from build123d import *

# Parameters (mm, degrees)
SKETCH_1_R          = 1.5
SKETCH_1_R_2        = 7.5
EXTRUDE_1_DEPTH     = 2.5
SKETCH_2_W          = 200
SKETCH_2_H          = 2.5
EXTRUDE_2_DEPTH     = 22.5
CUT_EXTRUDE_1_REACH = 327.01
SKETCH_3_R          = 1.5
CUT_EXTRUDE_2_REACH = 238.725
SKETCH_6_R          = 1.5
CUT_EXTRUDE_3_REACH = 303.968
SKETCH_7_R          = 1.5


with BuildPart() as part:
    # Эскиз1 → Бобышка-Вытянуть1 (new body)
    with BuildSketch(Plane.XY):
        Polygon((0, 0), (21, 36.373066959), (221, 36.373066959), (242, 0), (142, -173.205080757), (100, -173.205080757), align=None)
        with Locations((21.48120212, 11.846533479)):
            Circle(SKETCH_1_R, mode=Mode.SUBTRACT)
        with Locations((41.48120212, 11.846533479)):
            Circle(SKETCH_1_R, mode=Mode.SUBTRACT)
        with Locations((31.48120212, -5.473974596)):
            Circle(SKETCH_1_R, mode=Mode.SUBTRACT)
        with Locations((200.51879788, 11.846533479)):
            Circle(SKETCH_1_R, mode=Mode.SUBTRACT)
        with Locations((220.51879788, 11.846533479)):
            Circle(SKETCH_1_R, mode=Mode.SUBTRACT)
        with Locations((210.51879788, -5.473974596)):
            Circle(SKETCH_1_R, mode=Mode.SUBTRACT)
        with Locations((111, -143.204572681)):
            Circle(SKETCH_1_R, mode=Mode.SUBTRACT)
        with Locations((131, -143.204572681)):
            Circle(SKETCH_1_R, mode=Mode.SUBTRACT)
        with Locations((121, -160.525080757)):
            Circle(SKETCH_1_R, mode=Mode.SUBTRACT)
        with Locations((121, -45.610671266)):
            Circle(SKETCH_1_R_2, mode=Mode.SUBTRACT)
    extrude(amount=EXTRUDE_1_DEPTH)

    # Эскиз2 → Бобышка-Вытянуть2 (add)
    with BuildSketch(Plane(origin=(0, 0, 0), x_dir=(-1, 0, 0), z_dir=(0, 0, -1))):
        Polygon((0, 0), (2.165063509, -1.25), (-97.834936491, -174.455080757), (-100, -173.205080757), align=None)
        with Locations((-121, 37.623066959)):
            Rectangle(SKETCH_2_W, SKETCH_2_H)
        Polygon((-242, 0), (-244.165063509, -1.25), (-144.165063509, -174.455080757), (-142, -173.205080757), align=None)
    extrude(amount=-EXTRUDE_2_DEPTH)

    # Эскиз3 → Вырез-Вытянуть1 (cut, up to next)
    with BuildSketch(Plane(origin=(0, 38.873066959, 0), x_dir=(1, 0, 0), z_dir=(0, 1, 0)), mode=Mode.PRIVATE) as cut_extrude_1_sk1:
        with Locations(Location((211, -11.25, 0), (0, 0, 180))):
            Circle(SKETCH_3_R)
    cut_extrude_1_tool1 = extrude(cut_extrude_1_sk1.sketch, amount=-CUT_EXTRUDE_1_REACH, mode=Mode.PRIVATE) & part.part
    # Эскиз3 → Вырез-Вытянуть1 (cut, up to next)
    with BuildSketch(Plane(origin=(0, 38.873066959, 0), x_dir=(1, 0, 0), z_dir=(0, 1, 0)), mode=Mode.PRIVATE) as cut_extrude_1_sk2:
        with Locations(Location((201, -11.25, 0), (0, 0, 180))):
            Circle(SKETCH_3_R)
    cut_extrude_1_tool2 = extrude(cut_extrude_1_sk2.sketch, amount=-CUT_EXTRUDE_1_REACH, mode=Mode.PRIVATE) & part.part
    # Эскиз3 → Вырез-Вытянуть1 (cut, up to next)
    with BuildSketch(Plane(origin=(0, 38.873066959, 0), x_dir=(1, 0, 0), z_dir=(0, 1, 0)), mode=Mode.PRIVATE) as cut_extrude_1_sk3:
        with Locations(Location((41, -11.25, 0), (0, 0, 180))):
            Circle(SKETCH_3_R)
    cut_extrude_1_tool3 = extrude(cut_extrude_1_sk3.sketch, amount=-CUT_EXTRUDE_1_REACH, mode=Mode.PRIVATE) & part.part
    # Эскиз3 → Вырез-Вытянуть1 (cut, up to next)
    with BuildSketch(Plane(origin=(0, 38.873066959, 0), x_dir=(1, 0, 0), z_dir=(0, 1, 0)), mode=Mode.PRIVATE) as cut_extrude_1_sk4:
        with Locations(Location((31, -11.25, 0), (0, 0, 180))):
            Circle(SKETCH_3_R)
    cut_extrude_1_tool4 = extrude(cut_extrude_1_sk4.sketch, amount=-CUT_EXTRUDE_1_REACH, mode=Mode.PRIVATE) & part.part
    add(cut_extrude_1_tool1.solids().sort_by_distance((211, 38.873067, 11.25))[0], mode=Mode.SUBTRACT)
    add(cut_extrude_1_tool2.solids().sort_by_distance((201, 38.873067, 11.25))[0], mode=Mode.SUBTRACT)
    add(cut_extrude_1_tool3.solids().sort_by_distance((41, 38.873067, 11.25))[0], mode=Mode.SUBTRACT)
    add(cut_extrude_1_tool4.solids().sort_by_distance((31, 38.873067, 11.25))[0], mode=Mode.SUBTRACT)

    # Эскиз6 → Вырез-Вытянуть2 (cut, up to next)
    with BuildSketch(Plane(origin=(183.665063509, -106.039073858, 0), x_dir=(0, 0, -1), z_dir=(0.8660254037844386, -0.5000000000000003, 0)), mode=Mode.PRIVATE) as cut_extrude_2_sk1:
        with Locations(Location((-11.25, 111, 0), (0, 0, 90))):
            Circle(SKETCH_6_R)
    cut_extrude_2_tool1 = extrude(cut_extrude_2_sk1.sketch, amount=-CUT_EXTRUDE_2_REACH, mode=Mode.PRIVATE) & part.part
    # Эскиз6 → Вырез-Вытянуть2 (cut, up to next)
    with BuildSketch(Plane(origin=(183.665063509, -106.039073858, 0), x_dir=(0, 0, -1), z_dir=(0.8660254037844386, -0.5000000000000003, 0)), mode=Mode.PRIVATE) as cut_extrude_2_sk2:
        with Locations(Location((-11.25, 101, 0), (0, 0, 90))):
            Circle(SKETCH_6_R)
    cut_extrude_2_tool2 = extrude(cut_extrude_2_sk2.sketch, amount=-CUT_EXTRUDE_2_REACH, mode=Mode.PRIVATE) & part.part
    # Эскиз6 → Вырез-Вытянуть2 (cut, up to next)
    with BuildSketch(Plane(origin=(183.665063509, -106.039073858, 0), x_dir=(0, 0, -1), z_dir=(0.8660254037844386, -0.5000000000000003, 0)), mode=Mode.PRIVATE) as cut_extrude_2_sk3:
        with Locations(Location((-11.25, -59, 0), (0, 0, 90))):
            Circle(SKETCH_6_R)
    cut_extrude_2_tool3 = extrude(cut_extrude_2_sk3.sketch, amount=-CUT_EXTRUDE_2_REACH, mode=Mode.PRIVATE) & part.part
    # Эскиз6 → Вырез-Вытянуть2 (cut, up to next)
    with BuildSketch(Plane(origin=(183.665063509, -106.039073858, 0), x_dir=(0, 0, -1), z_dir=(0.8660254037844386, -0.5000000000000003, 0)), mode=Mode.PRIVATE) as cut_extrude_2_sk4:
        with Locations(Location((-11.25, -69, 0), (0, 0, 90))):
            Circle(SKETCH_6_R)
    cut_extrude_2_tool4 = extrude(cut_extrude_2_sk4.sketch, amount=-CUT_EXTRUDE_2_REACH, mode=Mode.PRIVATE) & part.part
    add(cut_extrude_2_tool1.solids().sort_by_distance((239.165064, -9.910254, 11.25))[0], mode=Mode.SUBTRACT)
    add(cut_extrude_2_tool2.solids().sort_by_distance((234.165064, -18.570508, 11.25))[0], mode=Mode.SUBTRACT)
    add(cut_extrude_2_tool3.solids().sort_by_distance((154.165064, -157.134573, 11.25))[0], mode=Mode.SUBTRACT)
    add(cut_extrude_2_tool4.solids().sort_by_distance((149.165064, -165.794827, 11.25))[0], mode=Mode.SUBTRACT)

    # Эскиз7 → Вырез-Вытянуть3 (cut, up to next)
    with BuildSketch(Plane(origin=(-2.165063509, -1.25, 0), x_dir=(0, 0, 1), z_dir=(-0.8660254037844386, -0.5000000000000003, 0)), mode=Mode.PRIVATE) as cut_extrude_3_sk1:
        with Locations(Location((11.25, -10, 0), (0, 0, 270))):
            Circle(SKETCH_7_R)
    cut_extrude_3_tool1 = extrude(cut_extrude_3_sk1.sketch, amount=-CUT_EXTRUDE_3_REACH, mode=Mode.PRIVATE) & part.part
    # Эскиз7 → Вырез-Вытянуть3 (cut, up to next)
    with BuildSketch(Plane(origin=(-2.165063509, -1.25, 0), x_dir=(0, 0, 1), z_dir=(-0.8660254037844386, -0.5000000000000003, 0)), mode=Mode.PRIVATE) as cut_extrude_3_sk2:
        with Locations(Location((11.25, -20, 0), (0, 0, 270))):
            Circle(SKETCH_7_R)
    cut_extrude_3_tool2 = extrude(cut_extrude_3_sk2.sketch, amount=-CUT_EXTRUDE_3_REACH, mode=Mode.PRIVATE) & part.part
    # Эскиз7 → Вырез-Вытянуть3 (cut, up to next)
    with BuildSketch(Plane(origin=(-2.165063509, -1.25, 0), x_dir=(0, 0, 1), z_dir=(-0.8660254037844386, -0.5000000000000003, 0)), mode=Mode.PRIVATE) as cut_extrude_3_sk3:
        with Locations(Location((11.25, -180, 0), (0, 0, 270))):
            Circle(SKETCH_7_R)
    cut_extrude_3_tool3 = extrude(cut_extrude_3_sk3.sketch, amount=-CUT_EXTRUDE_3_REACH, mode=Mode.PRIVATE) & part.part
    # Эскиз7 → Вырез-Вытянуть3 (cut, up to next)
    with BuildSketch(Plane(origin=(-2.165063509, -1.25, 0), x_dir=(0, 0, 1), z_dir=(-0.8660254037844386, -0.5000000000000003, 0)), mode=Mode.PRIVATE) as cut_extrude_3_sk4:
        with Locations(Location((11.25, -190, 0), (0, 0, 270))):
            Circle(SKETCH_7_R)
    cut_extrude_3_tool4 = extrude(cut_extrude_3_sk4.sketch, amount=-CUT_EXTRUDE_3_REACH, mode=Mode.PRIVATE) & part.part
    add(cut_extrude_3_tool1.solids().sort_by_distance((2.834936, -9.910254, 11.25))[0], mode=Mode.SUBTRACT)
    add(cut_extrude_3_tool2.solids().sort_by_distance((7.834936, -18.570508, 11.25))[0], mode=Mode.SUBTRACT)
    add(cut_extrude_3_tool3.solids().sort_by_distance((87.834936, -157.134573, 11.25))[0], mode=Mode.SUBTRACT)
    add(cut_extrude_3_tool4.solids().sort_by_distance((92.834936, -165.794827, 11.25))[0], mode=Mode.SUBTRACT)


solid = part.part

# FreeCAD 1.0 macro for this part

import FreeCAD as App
import Part
import Sketcher
from FreeCAD import Vector
Q = App.Units.Quantity

doc = App.newDocument("Part")
body = doc.addObject("PartDesign::Body", "Body")

# Sketch on XY plane
sketch1 = body.newObject("Sketcher::SketchObject", "Sketch")
sketch1.AttachmentSupport = (doc.getObject("XY_Plane"), [""])
sketch1.MapMode = "FlatFace"
sketch1.addGeometry([
    Part.LineSegment(Vector(21, 36.4, 0), Vector(0, 0, 0)),  # 0
    Part.LineSegment(Vector(0, 0, 0), Vector(100, -173.2, 0)),  # 1
    Part.LineSegment(Vector(100, -173.2, 0), Vector(142, -173.2, 0)),  # 2
    Part.LineSegment(Vector(142, -173.2, 0), Vector(242, 0, 0)),  # 3
    Part.LineSegment(Vector(242, 0, 0), Vector(221, 36.4, 0)),  # 4
    Part.LineSegment(Vector(221, 36.4, 0), Vector(21, 36.4, 0)),  # 5
    Part.Circle(Vector(121, -160.5, 0), Vector(0, 0, 1), 1.5),  # 6
    Part.Circle(Vector(131, -143.2, 0), Vector(0, 0, 1), 1.5),  # 7
    Part.Circle(Vector(111, -143.2, 0), Vector(0, 0, 1), 1.5),  # 8
    Part.Circle(Vector(121, -45.6, 0), Vector(0, 0, 1), 7.5),  # 9
    Part.Circle(Vector(210.5, -5.5, 0), Vector(0, 0, 1), 1.5),  # 10
    Part.Circle(Vector(220.5, 11.8, 0), Vector(0, 0, 1), 1.5),  # 11
    Part.Circle(Vector(200.5, 11.8, 0), Vector(0, 0, 1), 1.5),  # 12
    Part.Circle(Vector(31.5, -5.5, 0), Vector(0, 0, 1), 1.5),  # 13
    Part.Circle(Vector(41.5, 11.8, 0), Vector(0, 0, 1), 1.5),  # 14
    Part.Circle(Vector(21.5, 11.8, 0), Vector(0, 0, 1), 1.5),  # 15
], False)
sketch1.addConstraint([
    Sketcher.Constraint("Coincident", 0, 2, 1, 1),
    Sketcher.Constraint("Coincident", 1, 2, 2, 1),
    Sketcher.Constraint("Coincident", 2, 2, 3, 1),
    Sketcher.Constraint("Coincident", 3, 2, 4, 1),
    Sketcher.Constraint("Coincident", 4, 2, 5, 1),
    Sketcher.Constraint("Coincident", 5, 2, 0, 1),
    Sketcher.Constraint("Horizontal", 2),
    Sketcher.Constraint("Horizontal", 5),
    Sketcher.Constraint("Coincident", 0, 2, -1, 1),
    Sketcher.Constraint("Equal", 6, 7),
    Sketcher.Constraint("Equal", 7, 8),
    Sketcher.Constraint("Equal", 8, 10),
    Sketcher.Constraint("Equal", 10, 11),
    Sketcher.Constraint("Equal", 11, 12),
    Sketcher.Constraint("Equal", 12, 13),
    Sketcher.Constraint("Equal", 13, 14),
    Sketcher.Constraint("Equal", 14, 15),
    Sketcher.Constraint("PointOnObject", 3, 2, -1),
    Sketcher.Constraint("Parallel", 0, 3),
    Sketcher.Constraint("Parallel", 1, 4),
    Sketcher.Constraint("Horizontal", 7, 3, 8, 3),
    Sketcher.Constraint("Horizontal", 11, 3, 12, 3),
    Sketcher.Constraint("Horizontal", 10, 3, 13, 3),
    Sketcher.Constraint("Horizontal", 12, 3, 14, 3),
    Sketcher.Constraint("Horizontal", 14, 3, 15, 3),
    Sketcher.Constraint("Vertical", 6, 3, 9, 3),
    Sketcher.Constraint("Equal", 1, 3),
    Sketcher.Constraint("Diameter", 6, 3.0),
    Sketcher.Constraint("Diameter", 9, 15.0),
    Sketcher.Constraint("DistanceX", 2, 1, 2, 2, 42.0),
    Sketcher.Constraint("DistanceX", 5, 2, 5, 1, 200.0),
    Sketcher.Constraint("Angle", 0, Q("-120 deg")),
    Sketcher.Constraint("Distance", 0, 42.0),
    Sketcher.Constraint("DistanceX", -1, 1, 6, 3, 121.0),
    Sketcher.Constraint("DistanceX", -1, 1, 7, 3, 131.0),
    Sketcher.Constraint("DistanceX", -1, 1, 8, 3, 111.0),
    Sketcher.Constraint("DistanceX", 10, 3, 11, 3, 10.0),
    Sketcher.Constraint("DistanceX", 12, 3, 10, 3, 10.0),
    Sketcher.Constraint("DistanceX", 13, 3, 14, 3, 10.0),
    Sketcher.Constraint("DistanceX", 15, 3, 13, 3, 10.0),
    Sketcher.Constraint("DistanceY", 1, 2, 6, 3, 12.68),
    Sketcher.Constraint("DistanceY", 7, 3, 9, 3, 97.593901),
    Sketcher.Constraint("DistanceY", 7, 3, 10, 3, 137.730598),
    Sketcher.Constraint("DistanceY", 9, 3, -1, 1, 45.610671),
    Sketcher.Constraint("DistanceY", 10, 3, 11, 3, 17.320508),
    Sketcher.Constraint("DistanceX", -1, 1, 10, 3, 210.518798),
    Sketcher.Constraint("DistanceX", -1, 1, 13, 3, 31.481202),
])
pad1 = body.newObject("PartDesign::Pad", "Pad")
pad1.Profile = sketch1
pad1.Length = 2.5

# Sketch on XY plane
sketch2 = body.newObject("Sketcher::SketchObject", "Sketch001")
sketch2.AttachmentSupport = (doc.getObject("XY_Plane"), [""])
sketch2.MapMode = "FlatFace"
sketch2.addGeometry([
    Part.LineSegment(Vector(-2.2, -1.2, 0), Vector(0, 0, 0)),  # 0
    Part.LineSegment(Vector(0, 0, 0), Vector(100, -173.2, 0)),  # 1
    Part.LineSegment(Vector(100, -173.2, 0), Vector(97.8, -174.5, 0)),  # 2
    Part.LineSegment(Vector(97.8, -174.5, 0), Vector(-2.2, -1.2, 0)),  # 3
    Part.LineSegment(Vector(221, 38.9, 0), Vector(221, 36.4, 0)),  # 4
    Part.LineSegment(Vector(221, 36.4, 0), Vector(21, 36.4, 0)),  # 5
    Part.LineSegment(Vector(21, 36.4, 0), Vector(21, 38.9, 0)),  # 6
    Part.LineSegment(Vector(21, 38.9, 0), Vector(221, 38.9, 0)),  # 7
    Part.LineSegment(Vector(242, 0, 0), Vector(244.2, -1.2, 0)),  # 8
    Part.LineSegment(Vector(244.2, -1.2, 0), Vector(144.2, -174.5, 0)),  # 9
    Part.LineSegment(Vector(144.2, -174.5, 0), Vector(142, -173.2, 0)),  # 10
    Part.LineSegment(Vector(142, -173.2, 0), Vector(242, 0, 0)),  # 11
], False)
sketch2.addConstraint([
    Sketcher.Constraint("Coincident", 0, 2, 1, 1),
    Sketcher.Constraint("Coincident", 1, 2, 2, 1),
    Sketcher.Constraint("Coincident", 2, 2, 3, 1),
    Sketcher.Constraint("Coincident", 3, 2, 0, 1),
    Sketcher.Constraint("Coincident", 4, 2, 5, 1),
    Sketcher.Constraint("Coincident", 5, 2, 6, 1),
    Sketcher.Constraint("Coincident", 6, 2, 7, 1),
    Sketcher.Constraint("Coincident", 7, 2, 4, 1),
    Sketcher.Constraint("Coincident", 8, 2, 9, 1),
    Sketcher.Constraint("Coincident", 9, 2, 10, 1),
    Sketcher.Constraint("Coincident", 10, 2, 11, 1),
    Sketcher.Constraint("Coincident", 11, 2, 8, 1),
    Sketcher.Constraint("Vertical", 4),
    Sketcher.Constraint("Horizontal", 5),
    Sketcher.Constraint("Vertical", 6),
    Sketcher.Constraint("Horizontal", 7),
    Sketcher.Constraint("Coincident", 0, 2, -1, 1),
    Sketcher.Constraint("PointOnObject", 11, 2, -1),
    Sketcher.Constraint("Perpendicular", 0, 1),
    Sketcher.Constraint("Perpendicular", 1, 2),
    Sketcher.Constraint("Perpendicular", 2, 3),
    Sketcher.Constraint("Perpendicular", 8, 9),
    Sketcher.Constraint("Perpendicular", 9, 10),
    Sketcher.Constraint("Perpendicular", 10, 11),
    Sketcher.Constraint("Horizontal", 3, 2, 8, 2),
    Sketcher.Constraint("Horizontal", 2, 2, 9, 2),
    Sketcher.Constraint("Equal", 2, 8),
    Sketcher.Constraint("DistanceX", 5, 2, 5, 1, 200.0),
    Sketcher.Constraint("Angle", 0, Q("30 deg")),
    Sketcher.Constraint("Distance", 1, 200.0),
    Sketcher.Constraint("DistanceY", 4, 2, 4, 1, 2.5),
    Sketcher.Constraint("DistanceX", -1, 1, 4, 2, 221.0),
    Sketcher.Constraint("DistanceX", -1, 1, 10, 2, 142.0),
    Sketcher.Constraint("Distance", 0, 2.5),
    Sketcher.Constraint("DistanceY", -1, 1, 4, 2, 36.373067),
])
pad2 = body.newObject("PartDesign::Pad", "Pad001")
pad2.Profile = sketch2
pad2.Length = 22.5

# Sketch on XZ plane
sketch3 = body.newObject("Sketcher::SketchObject", "Sketch002")
sketch3.AttachmentSupport = (doc.getObject("XZ_Plane"), [""])
sketch3.MapMode = "FlatFace"
sketch3.AttachmentOffset = App.Placement(Vector(0, 0, -38.873067), App.Rotation())
sketch3.addGeometry(Part.Circle(Vector(211, 11.2, 0), Vector(0, 0, 1), 1.5), False)
sketch3.addConstraint([
    Sketcher.Constraint("Diameter", 0, 3.0),
    Sketcher.Constraint("DistanceX", -1, 1, 0, 3, 211.0),
    Sketcher.Constraint("DistanceY", -1, 1, 0, 3, 11.25),
])
pocket1 = body.newObject("PartDesign::Pocket", "Pocket")
pocket1.Profile = sketch3
pocket1.Type = "UpToFirst"
pocket1.Reversed = True

# Sketch on XZ plane
sketch4 = body.newObject("Sketcher::SketchObject", "Sketch003")
sketch4.AttachmentSupport = (doc.getObject("XZ_Plane"), [""])
sketch4.MapMode = "FlatFace"
sketch4.AttachmentOffset = App.Placement(Vector(0, 0, -38.873067), App.Rotation())
sketch4.addGeometry(Part.Circle(Vector(201, 11.2, 0), Vector(0, 0, 1), 1.5), False)
sketch4.addConstraint([
    Sketcher.Constraint("Diameter", 0, 3.0),
    Sketcher.Constraint("DistanceX", -1, 1, 0, 3, 201.0),
    Sketcher.Constraint("DistanceY", -1, 1, 0, 3, 11.25),
])
pocket2 = body.newObject("PartDesign::Pocket", "Pocket001")
pocket2.Profile = sketch4
pocket2.Type = "UpToFirst"
pocket2.Reversed = True

# Sketch on XZ plane
sketch5 = body.newObject("Sketcher::SketchObject", "Sketch004")
sketch5.AttachmentSupport = (doc.getObject("XZ_Plane"), [""])
sketch5.MapMode = "FlatFace"
sketch5.AttachmentOffset = App.Placement(Vector(0, 0, -38.873067), App.Rotation())
sketch5.addGeometry(Part.Circle(Vector(41, 11.2, 0), Vector(0, 0, 1), 1.5), False)
sketch5.addConstraint([
    Sketcher.Constraint("Diameter", 0, 3.0),
    Sketcher.Constraint("DistanceX", -1, 1, 0, 3, 41.0),
    Sketcher.Constraint("DistanceY", -1, 1, 0, 3, 11.25),
])
pocket3 = body.newObject("PartDesign::Pocket", "Pocket002")
pocket3.Profile = sketch5
pocket3.Type = "UpToFirst"
pocket3.Reversed = True

# Sketch on XZ plane
sketch6 = body.newObject("Sketcher::SketchObject", "Sketch005")
sketch6.AttachmentSupport = (doc.getObject("XZ_Plane"), [""])
sketch6.MapMode = "FlatFace"
sketch6.AttachmentOffset = App.Placement(Vector(0, 0, -38.873067), App.Rotation())
sketch6.addGeometry(Part.Circle(Vector(31, 11.2, 0), Vector(0, 0, 1), 1.5), False)
sketch6.addConstraint([
    Sketcher.Constraint("Diameter", 0, 3.0),
    Sketcher.Constraint("DistanceX", -1, 1, 0, 3, 31.0),
    Sketcher.Constraint("DistanceY", -1, 1, 0, 3, 11.25),
])
pocket4 = body.newObject("PartDesign::Pocket", "Pocket003")
pocket4.Profile = sketch6
pocket4.Type = "UpToFirst"
pocket4.Reversed = True

# Sketch on an angled plane
sketch7 = body.newObject("Sketcher::SketchObject", "Sketch006")
sketch7.Placement = App.Placement(Vector(183.665064, -106.039074, 0), App.Rotation(Vector(0, 0, -1), Vector(0.5, 0.866025404, 0), Vector(0.866025404, -0.5, 0), "ZXY"))
sketch7.addGeometry(Part.Circle(Vector(-11.2, 111, 0), Vector(0, 0, 1), 1.5), False)
sketch7.addConstraint([
    Sketcher.Constraint("Diameter", 0, 3.0),
    Sketcher.Constraint("DistanceY", -1, 1, 0, 3, 111.0),
    Sketcher.Constraint("DistanceX", 0, 3, -1, 1, 11.25),
])
pocket5 = body.newObject("PartDesign::Pocket", "Pocket004")
pocket5.Profile = sketch7
pocket5.Type = "UpToFirst"

# Sketch on an angled plane
sketch8 = body.newObject("Sketcher::SketchObject", "Sketch007")
sketch8.Placement = App.Placement(Vector(183.665064, -106.039074, 0), App.Rotation(Vector(0, 0, -1), Vector(0.5, 0.866025404, 0), Vector(0.866025404, -0.5, 0), "ZXY"))
sketch8.addGeometry(Part.Circle(Vector(-11.2, 101, 0), Vector(0, 0, 1), 1.5), False)
sketch8.addConstraint([
    Sketcher.Constraint("Diameter", 0, 3.0),
    Sketcher.Constraint("DistanceY", -1, 1, 0, 3, 101.0),
    Sketcher.Constraint("DistanceX", 0, 3, -1, 1, 11.25),
])
pocket6 = body.newObject("PartDesign::Pocket", "Pocket005")
pocket6.Profile = sketch8
pocket6.Type = "UpToFirst"

# Sketch on an angled plane
sketch9 = body.newObject("Sketcher::SketchObject", "Sketch008")
sketch9.Placement = App.Placement(Vector(183.665064, -106.039074, 0), App.Rotation(Vector(0, 0, -1), Vector(0.5, 0.866025404, 0), Vector(0.866025404, -0.5, 0), "ZXY"))
sketch9.addGeometry(Part.Circle(Vector(-11.2, -59, 0), Vector(0, 0, 1), 1.5), False)
sketch9.addConstraint([
    Sketcher.Constraint("Diameter", 0, 3.0),
    Sketcher.Constraint("DistanceY", 0, 3, -1, 1, 59.0),
    Sketcher.Constraint("DistanceX", 0, 3, -1, 1, 11.25),
])
pocket7 = body.newObject("PartDesign::Pocket", "Pocket006")
pocket7.Profile = sketch9
pocket7.Type = "UpToFirst"

# Sketch on an angled plane
sketch10 = body.newObject("Sketcher::SketchObject", "Sketch009")
sketch10.Placement = App.Placement(Vector(183.665064, -106.039074, 0), App.Rotation(Vector(0, 0, -1), Vector(0.5, 0.866025404, 0), Vector(0.866025404, -0.5, 0), "ZXY"))
sketch10.addGeometry(Part.Circle(Vector(-11.2, -69, 0), Vector(0, 0, 1), 1.5), False)
sketch10.addConstraint([
    Sketcher.Constraint("Diameter", 0, 3.0),
    Sketcher.Constraint("DistanceY", 0, 3, -1, 1, 69.0),
    Sketcher.Constraint("DistanceX", 0, 3, -1, 1, 11.25),
])
pocket8 = body.newObject("PartDesign::Pocket", "Pocket007")
pocket8.Profile = sketch10
pocket8.Type = "UpToFirst"

# Sketch on an angled plane
sketch11 = body.newObject("Sketcher::SketchObject", "Sketch010")
sketch11.Placement = App.Placement(Vector(-2.165064, -1.25, 0), App.Rotation(Vector(0, 0, 1), Vector(-0.5, 0.866025404, 0), Vector(-0.866025404, -0.5, 0), "ZXY"))
sketch11.addGeometry(Part.Circle(Vector(11.2, -10, 0), Vector(0, 0, 1), 1.5), False)
sketch11.addConstraint([
    Sketcher.Constraint("Diameter", 0, 3.0),
    Sketcher.Constraint("DistanceY", 0, 3, -1, 1, 10.0),
    Sketcher.Constraint("DistanceX", -1, 1, 0, 3, 11.25),
])
pocket9 = body.newObject("PartDesign::Pocket", "Pocket008")
pocket9.Profile = sketch11
pocket9.Type = "UpToFirst"

# Sketch on an angled plane
sketch12 = body.newObject("Sketcher::SketchObject", "Sketch011")
sketch12.Placement = App.Placement(Vector(-2.165064, -1.25, 0), App.Rotation(Vector(0, 0, 1), Vector(-0.5, 0.866025404, 0), Vector(-0.866025404, -0.5, 0), "ZXY"))
sketch12.addGeometry(Part.Circle(Vector(11.2, -20, 0), Vector(0, 0, 1), 1.5), False)
sketch12.addConstraint([
    Sketcher.Constraint("Diameter", 0, 3.0),
    Sketcher.Constraint("DistanceY", 0, 3, -1, 1, 20.0),
    Sketcher.Constraint("DistanceX", -1, 1, 0, 3, 11.25),
])
pocket10 = body.newObject("PartDesign::Pocket", "Pocket009")
pocket10.Profile = sketch12
pocket10.Type = "UpToFirst"

# Sketch on an angled plane
sketch13 = body.newObject("Sketcher::SketchObject", "Sketch012")
sketch13.Placement = App.Placement(Vector(-2.165064, -1.25, 0), App.Rotation(Vector(0, 0, 1), Vector(-0.5, 0.866025404, 0), Vector(-0.866025404, -0.5, 0), "ZXY"))
sketch13.addGeometry(Part.Circle(Vector(11.2, -180, 0), Vector(0, 0, 1), 1.5), False)
sketch13.addConstraint([
    Sketcher.Constraint("Diameter", 0, 3.0),
    Sketcher.Constraint("DistanceY", 0, 3, -1, 1, 180.0),
    Sketcher.Constraint("DistanceX", -1, 1, 0, 3, 11.25),
])
pocket11 = body.newObject("PartDesign::Pocket", "Pocket010")
pocket11.Profile = sketch13
pocket11.Type = "UpToFirst"

# Sketch on an angled plane
sketch14 = body.newObject("Sketcher::SketchObject", "Sketch013")
sketch14.Placement = App.Placement(Vector(-2.165064, -1.25, 0), App.Rotation(Vector(0, 0, 1), Vector(-0.5, 0.866025404, 0), Vector(-0.866025404, -0.5, 0), "ZXY"))
sketch14.addGeometry(Part.Circle(Vector(11.2, -190, 0), Vector(0, 0, 1), 1.5), False)
sketch14.addConstraint([
    Sketcher.Constraint("Diameter", 0, 3.0),
    Sketcher.Constraint("DistanceY", 0, 3, -1, 1, 190.0),
    Sketcher.Constraint("DistanceX", -1, 1, 0, 3, 11.25),
])
pocket12 = body.newObject("PartDesign::Pocket", "Pocket011")
pocket12.Profile = sketch14
pocket12.Type = "UpToFirst"

doc.recompute()
